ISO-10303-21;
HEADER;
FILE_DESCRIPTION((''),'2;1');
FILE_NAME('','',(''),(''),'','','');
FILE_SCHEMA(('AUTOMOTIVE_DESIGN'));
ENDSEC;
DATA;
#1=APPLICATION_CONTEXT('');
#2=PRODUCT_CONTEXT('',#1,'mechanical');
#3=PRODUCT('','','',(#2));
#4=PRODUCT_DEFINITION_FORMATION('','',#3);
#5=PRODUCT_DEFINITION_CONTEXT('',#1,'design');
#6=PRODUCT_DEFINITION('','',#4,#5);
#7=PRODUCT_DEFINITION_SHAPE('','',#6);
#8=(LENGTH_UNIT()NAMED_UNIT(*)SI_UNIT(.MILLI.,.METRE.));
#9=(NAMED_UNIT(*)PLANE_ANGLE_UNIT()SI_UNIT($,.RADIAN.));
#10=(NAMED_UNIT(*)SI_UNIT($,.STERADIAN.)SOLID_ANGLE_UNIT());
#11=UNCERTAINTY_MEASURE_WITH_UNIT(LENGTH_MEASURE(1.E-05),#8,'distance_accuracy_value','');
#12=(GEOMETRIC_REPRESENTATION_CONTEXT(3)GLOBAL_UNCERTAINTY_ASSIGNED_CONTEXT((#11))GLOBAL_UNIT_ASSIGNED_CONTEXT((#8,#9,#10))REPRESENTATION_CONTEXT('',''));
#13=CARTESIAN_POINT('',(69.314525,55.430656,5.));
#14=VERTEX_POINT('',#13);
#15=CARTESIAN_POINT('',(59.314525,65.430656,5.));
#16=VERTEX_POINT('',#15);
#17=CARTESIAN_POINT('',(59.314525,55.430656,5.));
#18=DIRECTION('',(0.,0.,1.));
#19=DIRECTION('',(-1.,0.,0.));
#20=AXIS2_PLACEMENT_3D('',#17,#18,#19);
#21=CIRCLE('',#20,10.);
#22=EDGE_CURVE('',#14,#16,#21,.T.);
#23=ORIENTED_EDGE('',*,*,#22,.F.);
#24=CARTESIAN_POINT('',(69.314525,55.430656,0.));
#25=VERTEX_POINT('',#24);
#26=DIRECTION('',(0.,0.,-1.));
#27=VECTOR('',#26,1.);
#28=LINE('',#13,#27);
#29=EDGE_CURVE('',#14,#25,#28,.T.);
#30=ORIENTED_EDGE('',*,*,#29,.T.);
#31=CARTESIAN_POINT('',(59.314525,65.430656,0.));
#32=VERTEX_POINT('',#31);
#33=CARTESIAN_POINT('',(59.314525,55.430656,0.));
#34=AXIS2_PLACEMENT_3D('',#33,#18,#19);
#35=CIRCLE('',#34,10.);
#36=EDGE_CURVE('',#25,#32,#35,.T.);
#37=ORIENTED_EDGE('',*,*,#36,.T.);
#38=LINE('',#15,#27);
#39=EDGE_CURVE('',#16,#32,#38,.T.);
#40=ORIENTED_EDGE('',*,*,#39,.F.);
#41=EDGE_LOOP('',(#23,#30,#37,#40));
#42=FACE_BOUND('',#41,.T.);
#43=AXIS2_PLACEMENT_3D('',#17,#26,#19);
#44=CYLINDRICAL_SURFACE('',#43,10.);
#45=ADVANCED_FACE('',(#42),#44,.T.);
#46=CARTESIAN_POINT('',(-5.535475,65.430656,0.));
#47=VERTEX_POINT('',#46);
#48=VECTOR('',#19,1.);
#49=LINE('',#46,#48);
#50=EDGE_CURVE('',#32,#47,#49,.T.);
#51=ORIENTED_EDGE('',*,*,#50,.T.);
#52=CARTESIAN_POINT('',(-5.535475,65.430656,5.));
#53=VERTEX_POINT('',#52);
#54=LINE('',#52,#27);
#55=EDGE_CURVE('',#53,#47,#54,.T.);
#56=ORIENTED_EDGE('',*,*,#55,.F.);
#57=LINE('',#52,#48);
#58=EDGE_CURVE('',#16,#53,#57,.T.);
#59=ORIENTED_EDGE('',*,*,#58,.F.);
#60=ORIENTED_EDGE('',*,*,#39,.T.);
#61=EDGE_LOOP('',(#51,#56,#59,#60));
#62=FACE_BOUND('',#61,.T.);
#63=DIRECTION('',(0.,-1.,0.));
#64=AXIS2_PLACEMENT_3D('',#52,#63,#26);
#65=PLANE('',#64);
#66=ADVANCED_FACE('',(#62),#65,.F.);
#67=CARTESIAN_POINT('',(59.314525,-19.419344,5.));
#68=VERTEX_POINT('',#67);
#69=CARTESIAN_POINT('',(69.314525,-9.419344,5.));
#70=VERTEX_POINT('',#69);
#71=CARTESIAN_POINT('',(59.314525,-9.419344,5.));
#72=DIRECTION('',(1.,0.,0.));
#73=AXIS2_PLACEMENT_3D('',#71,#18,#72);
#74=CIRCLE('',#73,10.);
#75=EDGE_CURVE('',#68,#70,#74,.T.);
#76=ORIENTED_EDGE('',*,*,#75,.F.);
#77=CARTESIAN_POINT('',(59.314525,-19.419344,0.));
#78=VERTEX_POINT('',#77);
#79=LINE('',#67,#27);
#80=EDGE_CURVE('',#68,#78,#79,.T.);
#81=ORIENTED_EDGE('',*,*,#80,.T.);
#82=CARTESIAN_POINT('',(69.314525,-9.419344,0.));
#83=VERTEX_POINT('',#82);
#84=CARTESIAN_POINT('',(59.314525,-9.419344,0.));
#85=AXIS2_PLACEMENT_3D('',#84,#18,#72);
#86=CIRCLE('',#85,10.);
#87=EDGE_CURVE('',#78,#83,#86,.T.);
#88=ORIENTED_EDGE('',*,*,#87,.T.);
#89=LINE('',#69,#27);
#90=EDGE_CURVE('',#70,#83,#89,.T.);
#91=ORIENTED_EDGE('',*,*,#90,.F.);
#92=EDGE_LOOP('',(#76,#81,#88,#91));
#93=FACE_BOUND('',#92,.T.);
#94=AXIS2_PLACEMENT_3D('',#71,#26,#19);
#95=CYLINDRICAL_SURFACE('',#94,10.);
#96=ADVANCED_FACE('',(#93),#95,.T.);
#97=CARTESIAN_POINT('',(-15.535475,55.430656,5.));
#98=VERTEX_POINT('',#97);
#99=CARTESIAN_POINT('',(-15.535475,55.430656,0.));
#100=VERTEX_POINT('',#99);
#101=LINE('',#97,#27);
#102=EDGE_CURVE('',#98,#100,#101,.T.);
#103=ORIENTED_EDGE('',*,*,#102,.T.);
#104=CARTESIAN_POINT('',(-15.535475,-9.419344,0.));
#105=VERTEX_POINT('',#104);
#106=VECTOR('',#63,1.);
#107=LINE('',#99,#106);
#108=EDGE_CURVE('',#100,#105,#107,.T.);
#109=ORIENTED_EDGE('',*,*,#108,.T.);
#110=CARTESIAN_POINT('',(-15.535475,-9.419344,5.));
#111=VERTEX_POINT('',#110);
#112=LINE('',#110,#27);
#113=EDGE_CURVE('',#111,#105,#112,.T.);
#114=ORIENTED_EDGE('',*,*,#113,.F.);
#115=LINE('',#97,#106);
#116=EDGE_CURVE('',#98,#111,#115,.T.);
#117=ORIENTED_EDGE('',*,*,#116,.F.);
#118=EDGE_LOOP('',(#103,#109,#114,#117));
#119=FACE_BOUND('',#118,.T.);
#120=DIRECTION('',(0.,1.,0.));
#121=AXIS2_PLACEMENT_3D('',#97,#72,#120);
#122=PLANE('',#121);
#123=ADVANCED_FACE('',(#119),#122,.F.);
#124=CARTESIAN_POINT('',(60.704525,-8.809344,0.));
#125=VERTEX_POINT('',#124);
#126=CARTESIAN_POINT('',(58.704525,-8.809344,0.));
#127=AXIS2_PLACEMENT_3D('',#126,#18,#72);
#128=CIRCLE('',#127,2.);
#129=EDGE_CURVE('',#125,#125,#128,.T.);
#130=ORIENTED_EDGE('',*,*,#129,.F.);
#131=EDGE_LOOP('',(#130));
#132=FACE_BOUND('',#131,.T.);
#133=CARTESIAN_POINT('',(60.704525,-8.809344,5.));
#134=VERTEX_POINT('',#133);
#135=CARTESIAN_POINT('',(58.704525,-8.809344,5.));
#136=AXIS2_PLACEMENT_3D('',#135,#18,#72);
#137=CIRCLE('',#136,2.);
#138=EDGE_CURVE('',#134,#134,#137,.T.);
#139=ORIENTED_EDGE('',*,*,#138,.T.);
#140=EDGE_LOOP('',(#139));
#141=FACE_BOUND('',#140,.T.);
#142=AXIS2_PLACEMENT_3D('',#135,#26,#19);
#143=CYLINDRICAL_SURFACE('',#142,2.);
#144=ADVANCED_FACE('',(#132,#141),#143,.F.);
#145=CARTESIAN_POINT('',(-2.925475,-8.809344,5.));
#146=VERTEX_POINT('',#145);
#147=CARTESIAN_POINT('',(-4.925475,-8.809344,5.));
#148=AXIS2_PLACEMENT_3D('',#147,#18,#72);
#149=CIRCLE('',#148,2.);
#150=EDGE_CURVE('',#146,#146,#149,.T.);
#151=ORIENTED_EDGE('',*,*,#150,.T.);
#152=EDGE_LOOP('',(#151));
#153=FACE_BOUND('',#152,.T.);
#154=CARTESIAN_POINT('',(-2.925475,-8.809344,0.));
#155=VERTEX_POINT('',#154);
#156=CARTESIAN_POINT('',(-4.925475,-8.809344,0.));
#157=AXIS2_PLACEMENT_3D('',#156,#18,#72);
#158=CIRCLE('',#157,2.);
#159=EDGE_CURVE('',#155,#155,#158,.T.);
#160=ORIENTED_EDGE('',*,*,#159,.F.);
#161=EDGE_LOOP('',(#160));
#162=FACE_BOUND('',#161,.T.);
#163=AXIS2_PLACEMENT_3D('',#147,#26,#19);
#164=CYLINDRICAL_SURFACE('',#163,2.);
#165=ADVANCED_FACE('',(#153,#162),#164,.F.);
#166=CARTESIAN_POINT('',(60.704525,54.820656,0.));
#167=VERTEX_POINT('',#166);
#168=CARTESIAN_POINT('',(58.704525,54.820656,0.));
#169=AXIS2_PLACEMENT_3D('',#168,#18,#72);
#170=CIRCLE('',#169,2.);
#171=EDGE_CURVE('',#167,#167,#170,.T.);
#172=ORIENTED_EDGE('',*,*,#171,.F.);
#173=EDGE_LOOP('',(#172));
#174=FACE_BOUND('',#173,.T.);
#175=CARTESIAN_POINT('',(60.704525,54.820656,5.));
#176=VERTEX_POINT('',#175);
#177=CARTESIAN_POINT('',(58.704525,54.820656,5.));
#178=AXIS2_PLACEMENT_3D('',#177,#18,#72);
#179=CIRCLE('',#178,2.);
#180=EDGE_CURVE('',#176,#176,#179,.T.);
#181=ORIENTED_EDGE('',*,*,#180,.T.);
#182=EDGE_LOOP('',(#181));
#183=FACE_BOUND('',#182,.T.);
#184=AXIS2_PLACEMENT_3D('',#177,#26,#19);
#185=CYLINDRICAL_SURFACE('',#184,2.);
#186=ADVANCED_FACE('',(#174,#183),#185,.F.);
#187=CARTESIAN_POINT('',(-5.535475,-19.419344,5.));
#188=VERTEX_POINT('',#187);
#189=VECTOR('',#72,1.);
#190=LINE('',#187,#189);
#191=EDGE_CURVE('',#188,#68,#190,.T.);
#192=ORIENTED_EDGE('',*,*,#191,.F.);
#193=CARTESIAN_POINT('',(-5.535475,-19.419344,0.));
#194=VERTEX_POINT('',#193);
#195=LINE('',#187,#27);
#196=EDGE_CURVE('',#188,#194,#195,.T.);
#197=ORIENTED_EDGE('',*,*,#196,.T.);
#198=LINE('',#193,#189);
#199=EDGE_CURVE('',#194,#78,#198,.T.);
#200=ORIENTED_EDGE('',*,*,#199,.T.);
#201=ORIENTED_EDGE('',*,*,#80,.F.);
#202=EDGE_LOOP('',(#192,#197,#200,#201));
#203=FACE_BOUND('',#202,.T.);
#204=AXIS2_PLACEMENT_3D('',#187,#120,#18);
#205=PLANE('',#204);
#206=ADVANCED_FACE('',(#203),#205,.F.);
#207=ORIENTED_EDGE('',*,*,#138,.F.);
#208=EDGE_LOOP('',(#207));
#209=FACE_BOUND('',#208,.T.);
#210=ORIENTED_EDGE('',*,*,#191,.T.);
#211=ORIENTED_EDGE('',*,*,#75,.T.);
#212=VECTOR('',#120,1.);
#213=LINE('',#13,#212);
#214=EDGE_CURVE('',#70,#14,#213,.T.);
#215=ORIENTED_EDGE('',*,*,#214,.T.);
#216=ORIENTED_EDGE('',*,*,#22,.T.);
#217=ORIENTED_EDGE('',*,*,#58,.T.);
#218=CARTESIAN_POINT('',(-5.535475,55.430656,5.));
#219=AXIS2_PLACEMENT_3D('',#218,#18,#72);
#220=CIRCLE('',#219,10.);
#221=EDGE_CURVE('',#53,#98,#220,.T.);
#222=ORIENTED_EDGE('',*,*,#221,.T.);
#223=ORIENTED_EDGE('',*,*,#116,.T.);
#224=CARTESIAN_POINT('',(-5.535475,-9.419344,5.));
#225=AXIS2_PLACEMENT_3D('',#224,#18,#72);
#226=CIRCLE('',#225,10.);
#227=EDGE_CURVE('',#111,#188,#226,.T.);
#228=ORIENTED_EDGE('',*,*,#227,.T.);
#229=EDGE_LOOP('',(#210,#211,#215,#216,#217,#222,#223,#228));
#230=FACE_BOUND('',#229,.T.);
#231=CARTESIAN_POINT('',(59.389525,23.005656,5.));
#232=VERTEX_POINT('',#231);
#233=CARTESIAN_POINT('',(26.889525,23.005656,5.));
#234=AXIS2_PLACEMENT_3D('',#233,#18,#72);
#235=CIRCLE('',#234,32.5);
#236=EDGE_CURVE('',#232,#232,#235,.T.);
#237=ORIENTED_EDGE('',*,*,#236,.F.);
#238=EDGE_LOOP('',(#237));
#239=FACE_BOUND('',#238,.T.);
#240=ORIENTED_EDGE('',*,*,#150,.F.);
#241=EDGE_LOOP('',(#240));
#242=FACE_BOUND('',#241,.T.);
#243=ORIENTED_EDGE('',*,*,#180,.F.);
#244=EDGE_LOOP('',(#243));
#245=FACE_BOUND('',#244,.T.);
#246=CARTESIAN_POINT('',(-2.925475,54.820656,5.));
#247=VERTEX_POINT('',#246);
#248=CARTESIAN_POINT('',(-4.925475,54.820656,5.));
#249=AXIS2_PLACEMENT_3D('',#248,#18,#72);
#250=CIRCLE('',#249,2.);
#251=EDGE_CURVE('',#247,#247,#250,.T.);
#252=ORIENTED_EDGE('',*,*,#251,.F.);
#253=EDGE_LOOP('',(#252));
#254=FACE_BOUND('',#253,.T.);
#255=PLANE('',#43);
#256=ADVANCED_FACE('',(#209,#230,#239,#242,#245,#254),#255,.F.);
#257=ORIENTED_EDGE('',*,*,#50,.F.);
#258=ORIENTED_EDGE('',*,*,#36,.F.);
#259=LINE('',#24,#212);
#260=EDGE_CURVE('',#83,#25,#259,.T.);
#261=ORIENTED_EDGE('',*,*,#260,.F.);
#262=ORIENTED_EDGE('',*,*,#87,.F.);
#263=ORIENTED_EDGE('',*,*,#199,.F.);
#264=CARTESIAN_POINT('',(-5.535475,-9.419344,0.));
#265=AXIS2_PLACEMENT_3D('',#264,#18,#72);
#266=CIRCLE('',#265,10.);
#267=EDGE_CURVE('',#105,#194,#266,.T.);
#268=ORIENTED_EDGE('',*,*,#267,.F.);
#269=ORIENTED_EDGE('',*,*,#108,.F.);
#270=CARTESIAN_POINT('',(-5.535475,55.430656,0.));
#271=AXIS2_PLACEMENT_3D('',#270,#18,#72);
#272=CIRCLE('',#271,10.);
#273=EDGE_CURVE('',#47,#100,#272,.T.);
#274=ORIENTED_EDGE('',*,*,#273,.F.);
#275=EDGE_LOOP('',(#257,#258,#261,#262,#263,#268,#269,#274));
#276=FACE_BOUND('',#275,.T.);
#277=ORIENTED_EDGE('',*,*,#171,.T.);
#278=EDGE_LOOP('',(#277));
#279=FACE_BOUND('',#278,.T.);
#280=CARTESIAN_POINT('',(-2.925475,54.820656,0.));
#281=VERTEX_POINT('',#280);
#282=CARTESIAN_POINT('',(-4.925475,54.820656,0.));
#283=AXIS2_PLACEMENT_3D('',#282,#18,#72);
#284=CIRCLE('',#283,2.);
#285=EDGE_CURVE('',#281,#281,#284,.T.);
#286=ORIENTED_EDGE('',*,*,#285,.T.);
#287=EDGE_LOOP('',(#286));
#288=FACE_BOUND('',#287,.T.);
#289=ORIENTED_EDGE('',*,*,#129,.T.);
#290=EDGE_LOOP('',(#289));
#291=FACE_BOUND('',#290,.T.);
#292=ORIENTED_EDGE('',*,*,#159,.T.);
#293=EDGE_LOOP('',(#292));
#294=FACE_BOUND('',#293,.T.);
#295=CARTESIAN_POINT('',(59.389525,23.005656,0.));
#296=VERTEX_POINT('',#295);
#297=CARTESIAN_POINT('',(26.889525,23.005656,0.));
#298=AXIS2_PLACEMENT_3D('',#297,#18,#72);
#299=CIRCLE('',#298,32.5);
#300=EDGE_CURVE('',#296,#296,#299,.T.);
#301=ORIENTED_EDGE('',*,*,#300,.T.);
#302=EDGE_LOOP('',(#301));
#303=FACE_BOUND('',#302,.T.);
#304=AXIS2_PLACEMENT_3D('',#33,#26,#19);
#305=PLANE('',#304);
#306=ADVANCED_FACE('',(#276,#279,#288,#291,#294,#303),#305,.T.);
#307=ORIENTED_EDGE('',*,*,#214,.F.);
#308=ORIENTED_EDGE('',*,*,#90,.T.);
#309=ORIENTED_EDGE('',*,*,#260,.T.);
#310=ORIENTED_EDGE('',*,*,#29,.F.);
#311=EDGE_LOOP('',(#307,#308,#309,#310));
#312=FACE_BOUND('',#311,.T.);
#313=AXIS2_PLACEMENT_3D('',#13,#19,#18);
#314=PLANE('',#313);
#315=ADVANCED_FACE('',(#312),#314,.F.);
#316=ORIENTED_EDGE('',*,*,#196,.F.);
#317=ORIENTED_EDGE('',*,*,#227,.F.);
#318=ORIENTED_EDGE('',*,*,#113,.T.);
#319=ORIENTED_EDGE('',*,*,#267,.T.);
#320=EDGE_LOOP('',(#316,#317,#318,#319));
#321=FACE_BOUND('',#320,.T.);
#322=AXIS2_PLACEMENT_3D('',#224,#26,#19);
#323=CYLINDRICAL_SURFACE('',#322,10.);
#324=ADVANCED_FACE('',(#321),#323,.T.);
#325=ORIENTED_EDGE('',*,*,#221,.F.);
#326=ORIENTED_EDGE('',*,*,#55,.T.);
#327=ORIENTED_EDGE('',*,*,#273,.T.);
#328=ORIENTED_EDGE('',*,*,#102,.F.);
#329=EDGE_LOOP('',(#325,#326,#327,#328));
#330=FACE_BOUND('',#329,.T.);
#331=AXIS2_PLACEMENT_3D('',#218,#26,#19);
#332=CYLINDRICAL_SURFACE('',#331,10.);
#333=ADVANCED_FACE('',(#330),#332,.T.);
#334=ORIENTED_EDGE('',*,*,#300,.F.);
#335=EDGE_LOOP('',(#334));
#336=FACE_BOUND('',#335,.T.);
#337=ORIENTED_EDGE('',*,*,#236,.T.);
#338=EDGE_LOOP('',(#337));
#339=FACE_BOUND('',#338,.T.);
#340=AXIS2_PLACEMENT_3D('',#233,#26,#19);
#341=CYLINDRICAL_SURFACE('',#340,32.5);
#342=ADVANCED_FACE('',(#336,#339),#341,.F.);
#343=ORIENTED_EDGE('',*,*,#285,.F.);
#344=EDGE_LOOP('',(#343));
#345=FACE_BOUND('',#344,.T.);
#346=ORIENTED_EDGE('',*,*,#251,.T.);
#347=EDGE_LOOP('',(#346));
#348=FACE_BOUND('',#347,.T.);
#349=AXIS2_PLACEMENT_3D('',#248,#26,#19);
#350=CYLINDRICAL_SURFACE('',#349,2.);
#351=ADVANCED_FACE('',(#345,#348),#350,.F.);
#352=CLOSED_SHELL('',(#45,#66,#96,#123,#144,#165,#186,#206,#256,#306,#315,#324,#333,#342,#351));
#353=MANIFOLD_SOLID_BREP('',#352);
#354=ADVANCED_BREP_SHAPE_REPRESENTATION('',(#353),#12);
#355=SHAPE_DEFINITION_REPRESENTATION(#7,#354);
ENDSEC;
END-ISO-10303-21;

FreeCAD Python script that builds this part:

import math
import FreeCAD as App
import Part
import Sketcher

V = App.Vector

doc = App.newDocument("Part")
body = doc.addObject("PartDesign::Body", "Body")

sketch1 = doc.addObject("Sketcher::SketchObject", "Sketch")
body.addObject(sketch1)
sketch1.AttachmentSupport = (doc.XY_Plane, [""])
sketch1.MapMode = "FlatFace"
sketch1.addGeometry(Part.LineSegment(V(59.3, 65.4, 0), V(-5.5, 65.4, 0)), False)
sketch1.addGeometry(Part.ArcOfCircle(Part.Circle(V(-5.5, 55.4, 0), V(0, 0, 1), 10), math.radians(90), math.radians(180)), False)
sketch1.addGeometry(Part.LineSegment(V(-15.5, 55.4, 0), V(-15.5, -9.4, 0)), False)
sketch1.addGeometry(Part.ArcOfCircle(Part.Circle(V(-5.5, -9.4, 0), V(0, 0, 1), 10), math.radians(-180), math.radians(-90)), False)
sketch1.addGeometry(Part.LineSegment(V(-5.5, -19.4, 0), V(59.3, -19.4, 0)), False)
sketch1.addGeometry(Part.ArcOfCircle(Part.Circle(V(59.3, -9.4, 0), V(0, 0, 1), 10), math.radians(-90), math.radians(0)), False)
sketch1.addGeometry(Part.LineSegment(V(69.3, -9.4, 0), V(69.3, 55.4, 0)), False)
sketch1.addGeometry(Part.ArcOfCircle(Part.Circle(V(59.3, 55.4, 0), V(0, 0, 1), 10), math.radians(0), math.radians(90)), False)
sketch1.addGeometry(Part.Circle(V(58.7, -8.8, 0), V(0, 0, 1), 2), False)
sketch1.addGeometry(Part.Circle(V(-4.9, -8.8, 0), V(0, 0, 1), 2), False)
sketch1.addGeometry(Part.Circle(V(58.7, 54.8, 0), V(0, 0, 1), 2), False)
sketch1.addGeometry(Part.Circle(V(26.9, 23, 0), V(0, 0, 1), 32.5), False)
sketch1.addGeometry(Part.Circle(V(-4.9, 54.8, 0), V(0, 0, 1), 2), False)
sketch1.addConstraint(Sketcher.Constraint("Tangent", 0, 2, 1, 1))
sketch1.addConstraint(Sketcher.Constraint("Tangent", 1, 2, 2, 1))
sketch1.addConstraint(Sketcher.Constraint("Tangent", 2, 2, 3, 1))
sketch1.addConstraint(Sketcher.Constraint("Tangent", 3, 2, 4, 1))
sketch1.addConstraint(Sketcher.Constraint("Tangent", 4, 2, 5, 1))
sketch1.addConstraint(Sketcher.Constraint("Tangent", 5, 2, 6, 1))
sketch1.addConstraint(Sketcher.Constraint("Tangent", 6, 2, 7, 1))
sketch1.addConstraint(Sketcher.Constraint("Tangent", 7, 2, 0, 1))
sketch1.addConstraint(Sketcher.Constraint("Horizontal", 0))
sketch1.addConstraint(Sketcher.Constraint("Vertical", 2))
sketch1.addConstraint(Sketcher.Constraint("Horizontal", 4))
sketch1.addConstraint(Sketcher.Constraint("Vertical", 6))
sketch1.addConstraint(Sketcher.Constraint("Equal", 1, 3))
sketch1.addConstraint(Sketcher.Constraint("Equal", 3, 5))
sketch1.addConstraint(Sketcher.Constraint("Equal", 5, 7))
sketch1.addConstraint(Sketcher.Constraint("Equal", 8, 9))
sketch1.addConstraint(Sketcher.Constraint("Equal", 9, 10))
sketch1.addConstraint(Sketcher.Constraint("Equal", 10, 12))
sketch1.addConstraint(Sketcher.Constraint("Horizontal", 8, 3, 9, 3))
sketch1.addConstraint(Sketcher.Constraint("Horizontal", 10, 3, 12, 3))
sketch1.addConstraint(Sketcher.Constraint("Vertical", 8, 3, 10, 3))
sketch1.addConstraint(Sketcher.Constraint("Vertical", 9, 3, 12, 3))
sketch1.addConstraint(Sketcher.Constraint("Equal", 4, 2))
sketch1.addConstraint(Sketcher.Constraint("Diameter", 8, 4.0))
sketch1.addConstraint(Sketcher.Constraint("Diameter", 11, 65.0))
sketch1.addConstraint(Sketcher.Constraint("Radius", 1, 10.0))
sketch1.addConstraint(Sketcher.Constraint("DistanceX", 0, 2, 0, 1, 64.85))
sketch1.addConstraint(Sketcher.Constraint("DistanceX", 8, 3, 5, 3, 0.61))
sketch1.addConstraint(Sketcher.Constraint("DistanceY", 5, 3, 8, 3, 0.61))
sketch1.addConstraint(Sketcher.Constraint("DistanceX", 3, 3, 9, 3, 0.61))
sketch1.addConstraint(Sketcher.Constraint("DistanceY", 10, 3, 7, 3, 0.61))
sketch1.addConstraint(Sketcher.Constraint("DistanceX", 11, 3, 8, 3, 31.815))
sketch1.addConstraint(Sketcher.Constraint("DistanceY", 8, 3, 11, 3, 31.815))
sketch1.addConstraint(Sketcher.Constraint("DistanceX", 1, 3, -1, 1, 5.535475))
sketch1.addConstraint(Sketcher.Constraint("DistanceY", -1, 1, 1, 3, 55.430656))
pad1 = doc.addObject("PartDesign::Pad", "Pad")
body.addObject(pad1)
pad1.Profile = sketch1
pad1.Length = 5

doc.recompute()
